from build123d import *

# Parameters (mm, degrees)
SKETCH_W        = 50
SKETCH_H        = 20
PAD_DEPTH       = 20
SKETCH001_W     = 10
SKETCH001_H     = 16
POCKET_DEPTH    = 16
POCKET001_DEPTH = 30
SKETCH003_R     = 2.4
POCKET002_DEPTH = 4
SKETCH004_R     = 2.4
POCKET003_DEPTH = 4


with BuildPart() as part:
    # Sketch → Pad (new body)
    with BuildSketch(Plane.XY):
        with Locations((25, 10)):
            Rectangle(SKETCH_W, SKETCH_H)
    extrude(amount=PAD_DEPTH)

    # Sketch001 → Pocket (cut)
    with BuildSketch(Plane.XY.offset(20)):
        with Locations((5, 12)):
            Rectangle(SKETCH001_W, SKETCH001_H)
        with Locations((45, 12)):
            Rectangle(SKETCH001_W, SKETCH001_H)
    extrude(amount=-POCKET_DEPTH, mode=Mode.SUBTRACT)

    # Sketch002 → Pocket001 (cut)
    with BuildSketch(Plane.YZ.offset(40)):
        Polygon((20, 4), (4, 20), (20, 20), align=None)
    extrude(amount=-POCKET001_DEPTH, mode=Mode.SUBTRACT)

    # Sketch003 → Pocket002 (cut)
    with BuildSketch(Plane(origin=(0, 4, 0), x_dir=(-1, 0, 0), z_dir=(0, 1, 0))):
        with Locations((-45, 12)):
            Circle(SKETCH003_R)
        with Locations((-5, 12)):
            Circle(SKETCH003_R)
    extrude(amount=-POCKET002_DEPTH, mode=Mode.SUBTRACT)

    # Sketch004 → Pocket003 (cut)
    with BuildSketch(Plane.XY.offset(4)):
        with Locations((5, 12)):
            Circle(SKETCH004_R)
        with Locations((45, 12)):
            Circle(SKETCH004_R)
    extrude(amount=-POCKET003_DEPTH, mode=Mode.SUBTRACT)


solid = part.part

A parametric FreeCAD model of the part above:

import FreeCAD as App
import Part
import Sketcher
from FreeCAD import Vector


def add_polygon(sketch, points):
    """Adds a closed chain of lines whose ends are joined by coincident constraints."""
    first, n = sketch.GeometryCount, len(points)
    for a, b in zip(points, points[1:] + points[:1]):
        sketch.addGeometry(Part.LineSegment(App.Vector(*a, 0), App.Vector(*b, 0)), False)
    for i in range(n):
        sketch.addConstraint(Sketcher.Constraint("Coincident", first + i, 2, first + (i + 1) % n, 1))

doc = App.newDocument("Part")
body = doc.addObject("PartDesign::Body", "Body")

sketch1 = body.newObject("Sketcher::SketchObject", "Sketch")
sketch1.AttachmentSupport = (doc.getObject("XY_Plane"), [""])
sketch1.MapMode = "FlatFace"
add_polygon(sketch1, [(0, 20), (0, 0), (50, 0), (50, 20)])
sketch1.addConstraint([
    Sketcher.Constraint("Vertical", 0),
    Sketcher.Constraint("Horizontal", 1),
    Sketcher.Constraint("Vertical", 2),
    Sketcher.Constraint("Horizontal", 3),
    Sketcher.Constraint("Coincident", 0, 2, -1, 1),
    Sketcher.Constraint("DistanceX", 1, 1, 1, 2, 50.0),
    Sketcher.Constraint("DistanceY", 0, 2, 0, 1, 20.0),
])
pad1 = body.newObject("PartDesign::Pad", "Pad")
pad1.Profile = sketch1
pad1.Length = 20

sketch2 = body.newObject("Sketcher::SketchObject", "Sketch001")
sketch2.AttachmentSupport = (doc.getObject("XY_Plane"), [""])
sketch2.MapMode = "FlatFace"
sketch2.AttachmentOffset = App.Placement(Vector(0, 0, 20), App.Rotation())
add_polygon(sketch2, [(0, 20), (0, 4), (10, 4), (10, 20)])
add_polygon(sketch2, [(40, 20), (40, 4), (50, 4), (50, 20)])
sketch2.addConstraint([
    Sketcher.Constraint("Vertical", 0),
    Sketcher.Constraint("Horizontal", 1),
    Sketcher.Constraint("Vertical", 2),
    Sketcher.Constraint("Horizontal", 3),
    Sketcher.Constraint("Vertical", 4),
    Sketcher.Constraint("Horizontal", 5),
    Sketcher.Constraint("Vertical", 6),
    Sketcher.Constraint("Horizontal", 7),
    Sketcher.Constraint("PointOnObject", 0, 2, -2),
    Sketcher.Constraint("Horizontal", 1, 2, 4, 2),
    Sketcher.Constraint("Horizontal", 3, 2, 6, 2),
    Sketcher.Constraint("Equal", 3, 5),
    Sketcher.Constraint("DistanceX", 1, 1, 1, 2, 10.0),
    Sketcher.Constraint("DistanceY", 0, 2, 0, 1, 16.0),
    Sketcher.Constraint("DistanceY", -1, 1, 0, 2, 4.0),
    Sketcher.Constraint("DistanceX", -1, 1, 4, 2, 40.0),
])
pocket1 = body.newObject("PartDesign::Pocket", "Pocket")
pocket1.Profile = sketch2
pocket1.Length = 16

sketch3 = body.newObject("Sketcher::SketchObject", "Sketch002")
sketch3.AttachmentSupport = (doc.getObject("YZ_Plane"), [""])
sketch3.MapMode = "FlatFace"
sketch3.AttachmentOffset = App.Placement(Vector(0, 0, 40), App.Rotation())
add_polygon(sketch3, [(4, 20), (20, 4), (20, 20)])
sketch3.addConstraint([
    Sketcher.Constraint("Vertical", 1),
    Sketcher.Constraint("Horizontal", 2),
    Sketcher.Constraint("Equal", 2, 1),
    Sketcher.Constraint("DistanceX", 2, 2, 2, 1, 16.0),
    Sketcher.Constraint("DistanceX", -1, 1, 0, 2, 20.0),
    Sketcher.Constraint("DistanceY", -1, 1, 0, 2, 4.0),
])
pocket2 = body.newObject("PartDesign::Pocket", "Pocket001")
pocket2.Profile = sketch3
pocket2.Length = 30

sketch4 = body.newObject("Sketcher::SketchObject", "Sketch003")
sketch4.AttachmentSupport = (doc.getObject("XZ_Plane"), [""])
sketch4.MapMode = "FlatFace"
sketch4.AttachmentOffset = App.Placement(Vector(0, 0, -4), App.Rotation())
sketch4.addGeometry([
    Part.Circle(Vector(45, 12, 0), Vector(0, 0, 1), 2.4),
    Part.Circle(Vector(5, 12, 0), Vector(0, 0, 1), 2.4),
], False)
sketch4.addConstraint([
    Sketcher.Constraint("Equal", 0, 1),
    Sketcher.Constraint("Horizontal", 0, 3, 1, 3),
    Sketcher.Constraint("Diameter", 0, 4.8),
    Sketcher.Constraint("DistanceX", -1, 1, 0, 3, 45.0),
    Sketcher.Constraint("DistanceY", -1, 1, 0, 3, 12.0),
    Sketcher.Constraint("DistanceX", -1, 1, 1, 3, 5.0),
])
pocket3 = body.newObject("PartDesign::Pocket", "Pocket002")
pocket3.Profile = sketch4
pocket3.Length = 4
pocket3.Reversed = True

sketch5 = body.newObject("Sketcher::SketchObject", "Sketch004")
sketch5.AttachmentSupport = (doc.getObject("XY_Plane"), [""])
sketch5.MapMode = "FlatFace"
sketch5.AttachmentOffset = App.Placement(Vector(0, 0, 4), App.Rotation())
sketch5.addGeometry([
    Part.Circle(Vector(5, 12, 0), Vector(0, 0, 1), 2.4),
    Part.Circle(Vector(45, 12, 0), Vector(0, 0, 1), 2.4),
], False)
sketch5.addConstraint([
    Sketcher.Constraint("Equal", 0, 1),
    Sketcher.Constraint("Horizontal", 0, 3, 1, 3),
    Sketcher.Constraint("Diameter", 0, 4.8),
    Sketcher.Constraint("DistanceX", -1, 1, 0, 3, 5.0),
    Sketcher.Constraint("DistanceY", -1, 1, 0, 3, 12.0),
    Sketcher.Constraint("DistanceX", -1, 1, 1, 3, 45.0),
])
pocket4 = body.newObject("PartDesign::Pocket", "Pocket003")
pocket4.Profile = sketch5
pocket4.Length = 4

doc.recompute()
